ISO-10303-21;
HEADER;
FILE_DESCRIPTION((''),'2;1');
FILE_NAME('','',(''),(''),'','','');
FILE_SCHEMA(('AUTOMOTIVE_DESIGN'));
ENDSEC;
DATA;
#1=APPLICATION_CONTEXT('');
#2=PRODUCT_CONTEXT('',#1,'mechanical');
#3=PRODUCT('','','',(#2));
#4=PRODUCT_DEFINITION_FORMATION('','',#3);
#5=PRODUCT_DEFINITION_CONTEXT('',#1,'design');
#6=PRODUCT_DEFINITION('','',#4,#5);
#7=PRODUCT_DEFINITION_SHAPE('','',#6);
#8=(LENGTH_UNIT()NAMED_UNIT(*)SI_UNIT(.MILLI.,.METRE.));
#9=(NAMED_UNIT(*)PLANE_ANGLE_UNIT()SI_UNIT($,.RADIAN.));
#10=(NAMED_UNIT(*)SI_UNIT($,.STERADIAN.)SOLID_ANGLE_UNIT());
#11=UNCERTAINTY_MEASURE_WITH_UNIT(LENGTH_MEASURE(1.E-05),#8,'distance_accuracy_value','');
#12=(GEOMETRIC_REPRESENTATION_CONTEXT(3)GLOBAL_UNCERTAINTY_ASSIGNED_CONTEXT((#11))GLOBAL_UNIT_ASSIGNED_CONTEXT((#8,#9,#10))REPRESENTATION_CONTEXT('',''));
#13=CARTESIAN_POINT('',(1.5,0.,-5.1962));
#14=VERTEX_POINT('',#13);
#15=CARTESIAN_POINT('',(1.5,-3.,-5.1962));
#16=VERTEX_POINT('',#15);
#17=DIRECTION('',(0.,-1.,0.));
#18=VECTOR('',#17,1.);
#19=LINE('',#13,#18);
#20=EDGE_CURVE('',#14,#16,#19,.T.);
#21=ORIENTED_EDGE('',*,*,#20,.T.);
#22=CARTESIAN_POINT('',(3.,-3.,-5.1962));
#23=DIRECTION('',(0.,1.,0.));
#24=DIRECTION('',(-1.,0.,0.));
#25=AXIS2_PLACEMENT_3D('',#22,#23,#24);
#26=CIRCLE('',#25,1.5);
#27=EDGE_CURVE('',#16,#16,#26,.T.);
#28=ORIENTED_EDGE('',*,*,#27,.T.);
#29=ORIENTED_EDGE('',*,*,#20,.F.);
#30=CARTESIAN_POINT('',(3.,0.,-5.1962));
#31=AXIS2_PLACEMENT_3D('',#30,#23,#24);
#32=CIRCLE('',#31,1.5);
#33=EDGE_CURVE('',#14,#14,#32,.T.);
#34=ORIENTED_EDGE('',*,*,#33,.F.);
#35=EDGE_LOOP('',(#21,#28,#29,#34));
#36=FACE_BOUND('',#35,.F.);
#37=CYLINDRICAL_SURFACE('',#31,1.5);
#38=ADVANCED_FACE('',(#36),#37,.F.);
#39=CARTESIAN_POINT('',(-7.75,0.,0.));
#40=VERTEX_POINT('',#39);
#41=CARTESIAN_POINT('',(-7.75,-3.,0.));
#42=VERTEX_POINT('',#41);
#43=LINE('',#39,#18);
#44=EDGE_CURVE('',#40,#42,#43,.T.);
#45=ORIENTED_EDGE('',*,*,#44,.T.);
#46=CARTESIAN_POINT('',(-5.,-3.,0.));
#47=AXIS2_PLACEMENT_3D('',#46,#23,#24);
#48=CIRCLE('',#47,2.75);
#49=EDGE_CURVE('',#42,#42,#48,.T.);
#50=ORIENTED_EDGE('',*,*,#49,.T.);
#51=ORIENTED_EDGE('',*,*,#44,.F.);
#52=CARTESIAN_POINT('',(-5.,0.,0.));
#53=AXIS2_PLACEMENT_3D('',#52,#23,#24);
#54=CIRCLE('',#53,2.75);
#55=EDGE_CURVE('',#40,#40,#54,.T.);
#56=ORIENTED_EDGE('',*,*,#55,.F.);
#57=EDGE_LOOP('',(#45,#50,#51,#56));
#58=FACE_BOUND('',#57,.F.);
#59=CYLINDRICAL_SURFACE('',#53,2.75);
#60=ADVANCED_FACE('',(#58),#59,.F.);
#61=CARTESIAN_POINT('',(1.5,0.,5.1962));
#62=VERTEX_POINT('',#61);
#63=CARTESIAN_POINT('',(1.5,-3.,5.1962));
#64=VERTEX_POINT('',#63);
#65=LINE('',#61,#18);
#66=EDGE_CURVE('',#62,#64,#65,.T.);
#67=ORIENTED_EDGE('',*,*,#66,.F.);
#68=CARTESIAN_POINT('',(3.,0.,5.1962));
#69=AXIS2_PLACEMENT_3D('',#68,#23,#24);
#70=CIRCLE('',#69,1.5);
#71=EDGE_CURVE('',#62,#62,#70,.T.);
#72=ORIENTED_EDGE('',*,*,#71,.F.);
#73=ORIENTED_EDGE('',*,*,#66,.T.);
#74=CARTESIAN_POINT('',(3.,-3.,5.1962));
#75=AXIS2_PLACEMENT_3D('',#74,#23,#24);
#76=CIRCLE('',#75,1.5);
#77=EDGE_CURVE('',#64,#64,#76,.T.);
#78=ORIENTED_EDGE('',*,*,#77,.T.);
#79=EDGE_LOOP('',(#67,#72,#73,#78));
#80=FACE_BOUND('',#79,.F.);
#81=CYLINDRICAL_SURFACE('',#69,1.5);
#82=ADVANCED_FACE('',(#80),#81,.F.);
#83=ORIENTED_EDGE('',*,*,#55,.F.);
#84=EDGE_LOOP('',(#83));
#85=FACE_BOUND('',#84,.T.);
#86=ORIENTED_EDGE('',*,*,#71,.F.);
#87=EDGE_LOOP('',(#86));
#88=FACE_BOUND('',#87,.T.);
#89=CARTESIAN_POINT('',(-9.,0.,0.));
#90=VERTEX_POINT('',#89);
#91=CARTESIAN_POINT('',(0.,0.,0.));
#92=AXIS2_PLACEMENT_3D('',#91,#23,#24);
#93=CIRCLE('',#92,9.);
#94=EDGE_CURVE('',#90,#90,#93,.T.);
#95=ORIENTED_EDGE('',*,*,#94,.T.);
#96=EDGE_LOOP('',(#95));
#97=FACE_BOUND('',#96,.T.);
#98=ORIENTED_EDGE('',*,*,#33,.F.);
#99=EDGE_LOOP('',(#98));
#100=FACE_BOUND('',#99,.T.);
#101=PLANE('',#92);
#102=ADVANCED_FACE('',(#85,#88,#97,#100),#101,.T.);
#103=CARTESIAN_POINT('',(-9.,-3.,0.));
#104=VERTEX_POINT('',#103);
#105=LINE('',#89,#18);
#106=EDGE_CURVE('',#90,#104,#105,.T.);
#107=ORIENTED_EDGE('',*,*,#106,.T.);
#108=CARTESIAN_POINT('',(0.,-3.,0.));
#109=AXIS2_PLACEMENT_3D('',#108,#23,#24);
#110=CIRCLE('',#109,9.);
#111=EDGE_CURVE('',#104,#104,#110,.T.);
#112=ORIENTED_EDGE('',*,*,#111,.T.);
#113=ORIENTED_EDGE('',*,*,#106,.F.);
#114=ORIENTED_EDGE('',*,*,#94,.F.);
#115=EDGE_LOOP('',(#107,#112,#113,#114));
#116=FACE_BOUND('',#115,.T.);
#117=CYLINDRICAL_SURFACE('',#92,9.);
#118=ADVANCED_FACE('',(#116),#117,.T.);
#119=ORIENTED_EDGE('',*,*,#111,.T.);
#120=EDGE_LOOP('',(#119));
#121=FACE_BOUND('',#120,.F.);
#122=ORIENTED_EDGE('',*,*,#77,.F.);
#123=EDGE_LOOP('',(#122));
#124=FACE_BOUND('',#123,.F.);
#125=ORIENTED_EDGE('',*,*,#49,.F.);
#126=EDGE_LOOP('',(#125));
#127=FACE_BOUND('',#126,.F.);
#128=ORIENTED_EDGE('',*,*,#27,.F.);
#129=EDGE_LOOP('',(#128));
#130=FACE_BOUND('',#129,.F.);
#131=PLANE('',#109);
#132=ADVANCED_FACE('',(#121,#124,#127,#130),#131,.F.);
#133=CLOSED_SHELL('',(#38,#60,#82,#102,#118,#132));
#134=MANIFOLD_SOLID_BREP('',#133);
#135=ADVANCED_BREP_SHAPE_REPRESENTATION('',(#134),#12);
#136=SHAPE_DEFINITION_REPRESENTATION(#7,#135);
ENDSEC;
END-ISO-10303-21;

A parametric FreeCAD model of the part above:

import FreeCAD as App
import Part
import Sketcher
from FreeCAD import Vector
Q = App.Units.Quantity

doc = App.newDocument("Part")
params = doc.addObject("Spreadsheet::Sheet", "Params")
for row, (alias, value) in enumerate([
    ("sketch1_diameter", "18 mm"),
    ("sketch1_diameter2", "3 mm"),
    ("sketch1_diameter3", "5.5 mm"),
    ("pad1_length", "3 mm"),
], start=1):
    params.set(f"A{row}", alias)
    params.set(f"B{row}", "=" + value)
    params.setAlias(f"B{row}", alias)

body = doc.addObject("PartDesign::Body", "Body")

# Sketch on XZ plane
sketch1 = body.newObject("Sketcher::SketchObject", "Sketch")
sketch1.AttachmentSupport = (doc.getObject("XZ_Plane"), [""])
sketch1.MapMode = "FlatFace"
sketch1.addGeometry(Part.Circle(Vector(0, 0, 0), Vector(0, 0, 1), 9), False)
sketch1.addGeometry(Part.Circle(Vector(3, -5.2, 0), Vector(0, 0, 1), 1.5), False)
sketch1.addGeometry(Part.Circle(Vector(3, 5.2, 0), Vector(0, 0, 1), 1.5), False)
sketch1.addGeometry(Part.Circle(Vector(-5, 0, 0), Vector(0, 0, 1), 2.8), False)
sketch1.addConstraint(Sketcher.Constraint("Coincident", 0, 3, -1, 1))
sketch1.addConstraint(Sketcher.Constraint("Equal", 1, 2))
sketch1.addConstraint(Sketcher.Constraint("Symmetric", 1, 3, 2, 3, -1))
sketch1.addConstraint(Sketcher.Constraint("PointOnObject", 3, 3, -1))
sketch1.addConstraint(Sketcher.Constraint("Diameter", 0, Q("18 mm")))
sketch1.addConstraint(Sketcher.Constraint("Diameter", 1, Q("3 mm")))
sketch1.addConstraint(Sketcher.Constraint("Diameter", 3, Q("5.5 mm")))
sketch1.addConstraint(Sketcher.Constraint("DistanceX", -1, 1, 1, 3, Q("3 mm")))
sketch1.addConstraint(Sketcher.Constraint("DistanceX", 3, 3, -1, 1, Q("5 mm")))
sketch1.addConstraint(Sketcher.Constraint("DistanceY", 1, 3, -1, 1, Q("5.1962 mm")))
sketch1.setExpression("Constraints[4]", "Params.sketch1_diameter")
sketch1.setExpression("Constraints[5]", "Params.sketch1_diameter2")
sketch1.setExpression("Constraints[6]", "Params.sketch1_diameter3")
pad1 = body.newObject("PartDesign::Pad", "Pad")
pad1.Profile = sketch1
pad1.setExpression("Length", "Params.pad1_length")

doc.recompute()
